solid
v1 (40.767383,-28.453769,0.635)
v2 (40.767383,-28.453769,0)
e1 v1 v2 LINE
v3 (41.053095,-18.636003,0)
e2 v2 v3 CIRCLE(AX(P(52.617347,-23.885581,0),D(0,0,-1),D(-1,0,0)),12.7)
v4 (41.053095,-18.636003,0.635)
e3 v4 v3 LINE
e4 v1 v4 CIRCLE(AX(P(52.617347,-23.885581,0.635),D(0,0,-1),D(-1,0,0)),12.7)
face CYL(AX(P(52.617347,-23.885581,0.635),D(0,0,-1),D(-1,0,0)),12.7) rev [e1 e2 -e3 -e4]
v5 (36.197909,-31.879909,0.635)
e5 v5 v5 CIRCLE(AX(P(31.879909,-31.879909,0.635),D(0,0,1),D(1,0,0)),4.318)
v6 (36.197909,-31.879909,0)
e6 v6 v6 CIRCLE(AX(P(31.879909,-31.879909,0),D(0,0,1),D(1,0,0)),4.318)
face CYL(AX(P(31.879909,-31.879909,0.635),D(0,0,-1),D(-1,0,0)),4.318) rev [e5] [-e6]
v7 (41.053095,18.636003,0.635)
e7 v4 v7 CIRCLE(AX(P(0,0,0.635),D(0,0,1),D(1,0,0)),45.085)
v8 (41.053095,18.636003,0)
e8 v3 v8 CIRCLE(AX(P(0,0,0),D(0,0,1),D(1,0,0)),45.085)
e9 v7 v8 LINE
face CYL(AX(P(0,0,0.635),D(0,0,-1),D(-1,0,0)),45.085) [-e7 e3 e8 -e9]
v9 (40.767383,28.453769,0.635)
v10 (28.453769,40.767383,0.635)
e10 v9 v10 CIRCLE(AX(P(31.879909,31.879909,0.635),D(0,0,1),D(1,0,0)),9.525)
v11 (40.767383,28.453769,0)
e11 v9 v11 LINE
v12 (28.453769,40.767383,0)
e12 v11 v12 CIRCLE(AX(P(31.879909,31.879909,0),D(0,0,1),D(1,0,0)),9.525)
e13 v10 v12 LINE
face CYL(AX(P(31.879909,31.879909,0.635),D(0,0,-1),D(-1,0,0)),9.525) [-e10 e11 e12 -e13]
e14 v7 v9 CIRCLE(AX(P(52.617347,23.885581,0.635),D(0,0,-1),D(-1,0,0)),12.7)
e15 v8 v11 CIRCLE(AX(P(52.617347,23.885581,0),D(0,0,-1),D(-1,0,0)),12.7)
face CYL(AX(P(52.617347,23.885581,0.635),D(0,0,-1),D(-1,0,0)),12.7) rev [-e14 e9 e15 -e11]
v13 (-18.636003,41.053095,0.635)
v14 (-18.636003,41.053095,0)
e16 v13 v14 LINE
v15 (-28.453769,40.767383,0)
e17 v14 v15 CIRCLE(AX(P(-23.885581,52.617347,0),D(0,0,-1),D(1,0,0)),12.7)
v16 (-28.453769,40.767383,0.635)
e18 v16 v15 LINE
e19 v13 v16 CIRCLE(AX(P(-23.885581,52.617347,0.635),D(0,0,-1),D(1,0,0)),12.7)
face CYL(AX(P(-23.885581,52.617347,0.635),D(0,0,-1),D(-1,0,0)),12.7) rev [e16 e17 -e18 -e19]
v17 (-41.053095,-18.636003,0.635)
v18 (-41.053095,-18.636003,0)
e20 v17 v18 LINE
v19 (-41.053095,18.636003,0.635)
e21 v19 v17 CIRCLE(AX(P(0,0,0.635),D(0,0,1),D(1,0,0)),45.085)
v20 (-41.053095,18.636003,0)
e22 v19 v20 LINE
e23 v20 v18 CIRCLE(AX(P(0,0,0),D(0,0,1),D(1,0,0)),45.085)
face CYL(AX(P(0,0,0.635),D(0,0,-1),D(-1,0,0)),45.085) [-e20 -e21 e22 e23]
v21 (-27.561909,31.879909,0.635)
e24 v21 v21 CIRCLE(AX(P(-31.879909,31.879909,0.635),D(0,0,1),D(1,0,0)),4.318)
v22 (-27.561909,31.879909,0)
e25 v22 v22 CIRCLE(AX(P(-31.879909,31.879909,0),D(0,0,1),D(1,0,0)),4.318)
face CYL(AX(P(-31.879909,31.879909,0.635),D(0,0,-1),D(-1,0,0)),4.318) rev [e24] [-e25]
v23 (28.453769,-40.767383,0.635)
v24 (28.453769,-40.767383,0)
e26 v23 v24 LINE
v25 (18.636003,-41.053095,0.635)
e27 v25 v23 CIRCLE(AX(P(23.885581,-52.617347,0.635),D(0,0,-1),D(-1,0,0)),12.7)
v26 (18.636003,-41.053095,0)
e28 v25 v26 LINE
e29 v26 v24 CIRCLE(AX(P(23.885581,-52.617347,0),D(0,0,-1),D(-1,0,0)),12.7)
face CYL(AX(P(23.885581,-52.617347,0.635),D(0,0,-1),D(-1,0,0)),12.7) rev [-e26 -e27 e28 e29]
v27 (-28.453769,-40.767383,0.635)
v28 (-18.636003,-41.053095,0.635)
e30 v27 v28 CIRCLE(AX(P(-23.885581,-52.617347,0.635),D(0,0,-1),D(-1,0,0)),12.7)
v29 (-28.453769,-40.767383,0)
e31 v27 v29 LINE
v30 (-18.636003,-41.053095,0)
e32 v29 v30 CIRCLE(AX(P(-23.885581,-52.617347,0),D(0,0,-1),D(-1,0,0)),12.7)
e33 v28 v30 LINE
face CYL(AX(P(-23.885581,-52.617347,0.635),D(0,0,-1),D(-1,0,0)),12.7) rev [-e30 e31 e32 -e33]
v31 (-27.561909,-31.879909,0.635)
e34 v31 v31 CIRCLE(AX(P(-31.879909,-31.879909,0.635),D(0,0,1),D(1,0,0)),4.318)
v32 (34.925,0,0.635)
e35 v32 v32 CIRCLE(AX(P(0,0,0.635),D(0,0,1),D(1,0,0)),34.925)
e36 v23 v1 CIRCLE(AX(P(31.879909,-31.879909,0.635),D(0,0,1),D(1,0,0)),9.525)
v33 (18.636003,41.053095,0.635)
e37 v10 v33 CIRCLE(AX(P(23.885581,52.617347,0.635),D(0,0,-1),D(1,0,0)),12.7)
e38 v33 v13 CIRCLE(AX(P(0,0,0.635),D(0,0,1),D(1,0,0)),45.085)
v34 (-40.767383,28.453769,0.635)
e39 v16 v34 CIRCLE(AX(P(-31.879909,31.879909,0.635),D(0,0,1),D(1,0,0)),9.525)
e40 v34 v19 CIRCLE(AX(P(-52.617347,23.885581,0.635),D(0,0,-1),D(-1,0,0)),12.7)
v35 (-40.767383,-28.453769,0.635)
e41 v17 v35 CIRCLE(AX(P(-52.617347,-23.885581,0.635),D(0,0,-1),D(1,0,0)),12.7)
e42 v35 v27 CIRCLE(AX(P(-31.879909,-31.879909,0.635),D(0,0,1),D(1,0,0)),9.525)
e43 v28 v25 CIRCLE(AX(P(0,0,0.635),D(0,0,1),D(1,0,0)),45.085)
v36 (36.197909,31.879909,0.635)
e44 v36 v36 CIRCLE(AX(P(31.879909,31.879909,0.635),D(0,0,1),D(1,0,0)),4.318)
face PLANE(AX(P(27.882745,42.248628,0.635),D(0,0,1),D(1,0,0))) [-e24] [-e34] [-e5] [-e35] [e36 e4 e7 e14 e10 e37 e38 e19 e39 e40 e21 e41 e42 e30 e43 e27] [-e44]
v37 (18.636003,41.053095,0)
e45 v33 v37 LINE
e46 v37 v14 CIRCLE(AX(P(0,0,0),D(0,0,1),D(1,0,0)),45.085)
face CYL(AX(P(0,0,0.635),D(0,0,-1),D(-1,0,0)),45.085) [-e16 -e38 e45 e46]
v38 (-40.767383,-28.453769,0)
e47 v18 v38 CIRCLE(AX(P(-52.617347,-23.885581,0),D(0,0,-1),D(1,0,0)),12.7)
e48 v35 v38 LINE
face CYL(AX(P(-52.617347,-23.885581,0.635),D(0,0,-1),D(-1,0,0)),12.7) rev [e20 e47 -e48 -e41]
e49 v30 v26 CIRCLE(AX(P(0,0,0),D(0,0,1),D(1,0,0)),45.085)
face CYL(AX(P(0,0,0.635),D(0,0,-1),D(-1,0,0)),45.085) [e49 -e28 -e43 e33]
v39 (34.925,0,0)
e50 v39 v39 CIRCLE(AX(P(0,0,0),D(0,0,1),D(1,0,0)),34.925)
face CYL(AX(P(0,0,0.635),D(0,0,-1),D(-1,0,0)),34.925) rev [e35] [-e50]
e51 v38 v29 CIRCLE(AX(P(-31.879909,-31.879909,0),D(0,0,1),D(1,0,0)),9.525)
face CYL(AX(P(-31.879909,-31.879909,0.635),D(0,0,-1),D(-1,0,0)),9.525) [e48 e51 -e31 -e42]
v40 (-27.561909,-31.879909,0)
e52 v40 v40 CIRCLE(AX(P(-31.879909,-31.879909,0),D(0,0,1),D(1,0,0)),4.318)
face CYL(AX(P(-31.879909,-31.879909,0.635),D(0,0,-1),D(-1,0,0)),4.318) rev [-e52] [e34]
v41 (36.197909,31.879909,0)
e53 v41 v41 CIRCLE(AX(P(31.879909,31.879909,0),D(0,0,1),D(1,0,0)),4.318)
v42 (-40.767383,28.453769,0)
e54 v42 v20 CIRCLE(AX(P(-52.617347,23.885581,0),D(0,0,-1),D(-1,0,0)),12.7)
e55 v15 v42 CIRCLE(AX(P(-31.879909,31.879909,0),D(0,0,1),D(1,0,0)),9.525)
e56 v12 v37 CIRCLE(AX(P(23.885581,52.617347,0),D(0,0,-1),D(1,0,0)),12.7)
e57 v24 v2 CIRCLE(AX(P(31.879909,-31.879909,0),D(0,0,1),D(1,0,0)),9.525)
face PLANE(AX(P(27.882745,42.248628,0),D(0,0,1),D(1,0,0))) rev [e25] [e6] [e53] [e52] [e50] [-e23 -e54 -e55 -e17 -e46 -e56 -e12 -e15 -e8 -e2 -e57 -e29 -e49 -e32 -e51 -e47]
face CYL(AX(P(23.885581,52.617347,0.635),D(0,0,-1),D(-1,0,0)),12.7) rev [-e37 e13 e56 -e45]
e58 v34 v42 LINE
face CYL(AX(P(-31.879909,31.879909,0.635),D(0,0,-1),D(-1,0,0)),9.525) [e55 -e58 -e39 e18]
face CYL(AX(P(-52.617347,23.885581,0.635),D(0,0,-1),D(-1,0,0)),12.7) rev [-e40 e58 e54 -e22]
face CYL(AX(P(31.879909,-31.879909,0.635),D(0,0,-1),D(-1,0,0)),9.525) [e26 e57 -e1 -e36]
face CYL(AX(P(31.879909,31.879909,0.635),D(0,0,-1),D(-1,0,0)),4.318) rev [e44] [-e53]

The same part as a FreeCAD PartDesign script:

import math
import FreeCAD as App
import Part
import Sketcher
Q = App.Units.Quantity

doc = App.newDocument("Part")
body = doc.addObject("PartDesign::Body", "Body")

# Sketch on XY plane
sketch1 = doc.addObject("Sketcher::SketchObject", "Sketch")
body.addObject(sketch1)
sketch1.AttachmentSupport = (doc.XY_Plane, [""])
sketch1.MapMode = "FlatFace"
sketch1.addGeometry([
    Part.ArcOfCircle(Part.Circle(App.Vector(0, 0, 0), App.Vector(0, 0, 1), 45.1), math.radians(156), math.radians(204)),  # 0
    Part.ArcOfCircle(Part.Circle(App.Vector(-52.6, -23.9, 0), App.Vector(0, 0, 1), 12.7), math.radians(-21), math.radians(24)),  # 1
    Part.ArcOfCircle(Part.Circle(App.Vector(-31.9, -31.9, 0), App.Vector(0, 0, 1), 9.5), math.radians(159), math.radians(291)),  # 2
    Part.ArcOfCircle(Part.Circle(App.Vector(-23.9, -52.6, 0), App.Vector(0, 0, 1), 12.7), math.radians(66), math.radians(111)),  # 3
    Part.ArcOfCircle(Part.Circle(App.Vector(0, 0, 0), App.Vector(0, 0, 1), 45.1), math.radians(-114), math.radians(-66)),  # 4
    Part.ArcOfCircle(Part.Circle(App.Vector(23.9, -52.6, 0), App.Vector(0, 0, 1), 12.7), math.radians(69), math.radians(114)),  # 5
    Part.ArcOfCircle(Part.Circle(App.Vector(31.9, -31.9, 0), App.Vector(0, 0, 1), 9.5), math.radians(-111), math.radians(21)),  # 6
    Part.ArcOfCircle(Part.Circle(App.Vector(52.6, -23.9, 0), App.Vector(0, 0, 1), 12.7), math.radians(156), math.radians(201)),  # 7
    Part.ArcOfCircle(Part.Circle(App.Vector(0, 0, 0), App.Vector(0, 0, 1), 45.1), math.radians(-24), math.radians(24)),  # 8
    Part.ArcOfCircle(Part.Circle(App.Vector(52.6, 23.9, 0), App.Vector(0, 0, 1), 12.7), math.radians(159), math.radians(204)),  # 9
    Part.ArcOfCircle(Part.Circle(App.Vector(31.9, 31.9, 0), App.Vector(0, 0, 1), 9.5), math.radians(-21), math.radians(111)),  # 10
    Part.ArcOfCircle(Part.Circle(App.Vector(23.9, 52.6, 0), App.Vector(0, 0, 1), 12.7), math.radians(-114), math.radians(-69)),  # 11
    Part.ArcOfCircle(Part.Circle(App.Vector(0, 0, 0), App.Vector(0, 0, 1), 45.1), math.radians(66), math.radians(114)),  # 12
    Part.ArcOfCircle(Part.Circle(App.Vector(-23.9, 52.6, 0), App.Vector(0, 0, 1), 12.7), math.radians(-111), math.radians(-66)),  # 13
    Part.ArcOfCircle(Part.Circle(App.Vector(-31.9, 31.9, 0), App.Vector(0, 0, 1), 9.5), math.radians(69), math.radians(201)),  # 14
    Part.ArcOfCircle(Part.Circle(App.Vector(-52.6, 23.9, 0), App.Vector(0, 0, 1), 12.7), math.radians(-24), math.radians(21)),  # 15
    Part.Circle(App.Vector(-31.9, -31.9, 0), App.Vector(0, 0, 1), 4.3),  # 16
    Part.Circle(App.Vector(31.9, -31.9, 0), App.Vector(0, 0, 1), 4.3),  # 17
    Part.Circle(App.Vector(0, 0, 0), App.Vector(0, 0, 1), 34.9),  # 18
    Part.Circle(App.Vector(-31.9, 31.9, 0), App.Vector(0, 0, 1), 4.3),  # 19
    Part.Circle(App.Vector(31.9, 31.9, 0), App.Vector(0, 0, 1), 4.3),  # 20
], False)
sketch1.addConstraint([
    Sketcher.Constraint("Tangent", 0, 2, 1, 2),
    Sketcher.Constraint("Tangent", 1, 1, 2, 1),
    Sketcher.Constraint("Tangent", 2, 2, 3, 2),
    Sketcher.Constraint("Tangent", 3, 1, 4, 1),
    Sketcher.Constraint("Tangent", 4, 2, 5, 2),
    Sketcher.Constraint("Tangent", 5, 1, 6, 1),
    Sketcher.Constraint("Tangent", 6, 2, 7, 2),
    Sketcher.Constraint("Tangent", 7, 1, 8, 1),
    Sketcher.Constraint("Tangent", 8, 2, 9, 2),
    Sketcher.Constraint("Tangent", 9, 1, 10, 1),
    Sketcher.Constraint("Tangent", 10, 2, 11, 2),
    Sketcher.Constraint("Tangent", 11, 1, 12, 1),
    Sketcher.Constraint("Tangent", 12, 2, 13, 2),
    Sketcher.Constraint("Tangent", 13, 1, 14, 1),
    Sketcher.Constraint("Tangent", 14, 2, 15, 2),
    Sketcher.Constraint("Tangent", 15, 1, 0, 1),
    Sketcher.Constraint("Coincident", 0, 3, -1, 1),
    Sketcher.Constraint("Coincident", 4, 3, -1, 1),
    Sketcher.Constraint("Coincident", 8, 3, -1, 1),
    Sketcher.Constraint("Coincident", 12, 3, -1, 1),
    Sketcher.Constraint("Coincident", 18, 3, -1, 1),
    Sketcher.Constraint("Coincident", 16, 3, 2, 3),
    Sketcher.Constraint("Coincident", 17, 3, 6, 3),
    Sketcher.Constraint("Coincident", 19, 3, 14, 3),
    Sketcher.Constraint("Coincident", 20, 3, 10, 3),
    Sketcher.Constraint("Equal", 1, 3),
    Sketcher.Constraint("Equal", 0, 4),
    Sketcher.Constraint("Equal", 3, 5),
    Sketcher.Constraint("Equal", 2, 6),
    Sketcher.Constraint("Equal", 5, 7),
    Sketcher.Constraint("Equal", 4, 8),
    Sketcher.Constraint("Equal", 7, 9),
    Sketcher.Constraint("Equal", 6, 10),
    Sketcher.Constraint("Equal", 9, 11),
    Sketcher.Constraint("Equal", 8, 12),
    Sketcher.Constraint("Equal", 11, 13),
    Sketcher.Constraint("Equal", 10, 14),
    Sketcher.Constraint("Equal", 13, 15),
    Sketcher.Constraint("Equal", 16, 17),
    Sketcher.Constraint("Equal", 17, 19),
    Sketcher.Constraint("Equal", 19, 20),
    Sketcher.Constraint("Symmetric", 2, 3, 10, 3, -1, 1),
    Sketcher.Constraint("Symmetric", 6, 3, 14, 3, -1, 1),
    Sketcher.Constraint("Symmetric", 2, 3, 6, 3, -2),
    Sketcher.Constraint("Radius", 1, Q("0.5 in")),
    Sketcher.Constraint("Diameter", 16, Q("0.34 in")),
    Sketcher.Constraint("Diameter", 18, Q("2.75 in")),
    Sketcher.Constraint("Radius", 0, Q("1.775 in")),
    Sketcher.Constraint("Radius", 2, Q("0.375 in")),
    Sketcher.Constraint("DistanceX", 1, 1, 3, 3, Q("16.881802 mm")),
    Sketcher.Constraint("DistanceY", 5, 1, 7, 3, Q("16.881802 mm")),
])
pad1 = doc.addObject("PartDesign::Pad", "Pad")
body.addObject(pad1)
pad1.Profile = sketch1
pad1.Length = Q("0.025 in")

doc.recompute()
